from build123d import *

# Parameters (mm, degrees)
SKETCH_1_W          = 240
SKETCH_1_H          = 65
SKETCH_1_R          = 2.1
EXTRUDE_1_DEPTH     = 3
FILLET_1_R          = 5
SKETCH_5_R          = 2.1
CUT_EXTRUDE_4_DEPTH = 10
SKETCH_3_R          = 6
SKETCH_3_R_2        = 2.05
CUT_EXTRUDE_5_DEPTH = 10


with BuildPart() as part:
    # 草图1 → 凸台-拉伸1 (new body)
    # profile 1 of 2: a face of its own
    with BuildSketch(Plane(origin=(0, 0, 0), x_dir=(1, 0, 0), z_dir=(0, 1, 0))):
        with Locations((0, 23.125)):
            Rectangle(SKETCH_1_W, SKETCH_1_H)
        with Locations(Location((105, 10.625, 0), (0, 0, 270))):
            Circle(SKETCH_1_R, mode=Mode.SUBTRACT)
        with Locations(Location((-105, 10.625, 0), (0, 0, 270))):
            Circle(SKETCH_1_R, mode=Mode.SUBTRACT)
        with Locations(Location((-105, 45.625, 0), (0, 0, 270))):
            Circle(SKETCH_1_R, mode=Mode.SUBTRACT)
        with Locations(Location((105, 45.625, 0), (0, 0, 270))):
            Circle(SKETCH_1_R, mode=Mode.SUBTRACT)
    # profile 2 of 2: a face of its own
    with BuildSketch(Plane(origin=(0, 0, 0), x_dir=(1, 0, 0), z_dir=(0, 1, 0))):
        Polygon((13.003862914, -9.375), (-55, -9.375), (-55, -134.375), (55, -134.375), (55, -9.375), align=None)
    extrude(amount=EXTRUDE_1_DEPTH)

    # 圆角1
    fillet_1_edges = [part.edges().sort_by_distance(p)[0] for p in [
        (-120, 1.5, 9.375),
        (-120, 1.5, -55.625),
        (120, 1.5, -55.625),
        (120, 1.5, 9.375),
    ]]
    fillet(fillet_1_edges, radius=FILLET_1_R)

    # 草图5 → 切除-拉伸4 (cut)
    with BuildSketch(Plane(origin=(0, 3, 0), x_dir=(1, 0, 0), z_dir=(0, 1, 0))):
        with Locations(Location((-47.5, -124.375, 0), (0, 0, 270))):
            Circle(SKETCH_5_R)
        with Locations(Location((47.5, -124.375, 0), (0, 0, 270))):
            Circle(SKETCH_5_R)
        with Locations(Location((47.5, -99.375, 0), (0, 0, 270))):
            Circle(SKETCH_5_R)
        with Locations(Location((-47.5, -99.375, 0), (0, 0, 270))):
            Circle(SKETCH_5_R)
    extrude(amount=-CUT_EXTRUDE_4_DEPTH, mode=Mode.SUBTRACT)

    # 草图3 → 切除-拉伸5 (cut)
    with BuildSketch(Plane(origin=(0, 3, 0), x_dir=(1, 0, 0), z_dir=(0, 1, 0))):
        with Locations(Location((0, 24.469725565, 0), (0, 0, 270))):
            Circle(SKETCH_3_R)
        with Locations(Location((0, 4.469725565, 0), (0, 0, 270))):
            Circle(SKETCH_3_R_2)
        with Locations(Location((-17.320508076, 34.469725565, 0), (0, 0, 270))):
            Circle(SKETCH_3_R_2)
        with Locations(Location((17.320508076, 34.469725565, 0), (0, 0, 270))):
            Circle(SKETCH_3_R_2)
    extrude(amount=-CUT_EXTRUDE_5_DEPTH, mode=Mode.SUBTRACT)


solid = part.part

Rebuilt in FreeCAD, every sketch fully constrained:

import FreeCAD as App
import Part
import Sketcher

V = App.Vector
Q = App.Units.Quantity


def edges_at(feature, points):
    """Names of the edges that pass closest to the given points."""
    edges = feature.Shape.Edges
    near = lambda p: min(range(len(edges)), key=lambda i: edges[i].distToShape(Part.Vertex(*p))[0])
    return sorted({f"Edge{near(p) + 1}" for p in points})


def add_polygon(sketch, points):
    """Adds a closed chain of lines whose ends are joined by coincident constraints."""
    first, n = sketch.GeometryCount, len(points)
    for a, b in zip(points, points[1:] + points[:1]):
        sketch.addGeometry(Part.LineSegment(App.Vector(*a, 0), App.Vector(*b, 0)), False)
    for i in range(n):
        sketch.addConstraint(Sketcher.Constraint("Coincident", first + i, 2, first + (i + 1) % n, 1))

doc = App.newDocument("Part")
body = doc.addObject("PartDesign::Body", "Body")

sketch1 = body.newObject("Sketcher::SketchObject", "Sketch")
sketch1.AttachmentSupport = (doc.getObject("XZ_Plane"), [""])
sketch1.MapMode = "FlatFace"
add_polygon(sketch1, [(-120, -55.625), (-120, 9.375), (-55, 9.375), (-55, 134.375), (55, 134.375), (55, 9.375), (120, 9.375), (120, -55.625)])
sketch1.addGeometry(Part.Circle(V(-105, -10.625, 0), V(0, 0, 1), 2.1), False)
sketch1.addGeometry(Part.Circle(V(105, -10.625, 0), V(0, 0, 1), 2.1), False)
sketch1.addGeometry(Part.Circle(V(-105, -45.625, 0), V(0, 0, 1), 2.1), False)
sketch1.addGeometry(Part.Circle(V(105, -45.625, 0), V(0, 0, 1), 2.1), False)
sketch1.addConstraint(Sketcher.Constraint("Vertical", 0))
sketch1.addConstraint(Sketcher.Constraint("Horizontal", 1))
sketch1.addConstraint(Sketcher.Constraint("Vertical", 2))
sketch1.addConstraint(Sketcher.Constraint("Horizontal", 3))
sketch1.addConstraint(Sketcher.Constraint("Vertical", 4))
sketch1.addConstraint(Sketcher.Constraint("Horizontal", 5))
sketch1.addConstraint(Sketcher.Constraint("Vertical", 6))
sketch1.addConstraint(Sketcher.Constraint("Horizontal", 7))
sketch1.addConstraint(Sketcher.Constraint("Equal", 8, 9))
sketch1.addConstraint(Sketcher.Constraint("Equal", 9, 10))
sketch1.addConstraint(Sketcher.Constraint("Equal", 10, 11))
sketch1.addConstraint(Sketcher.Constraint("Symmetric", 8, 3, 9, 3, -2))
sketch1.addConstraint(Sketcher.Constraint("Symmetric", 10, 3, 11, 3, -2))
sketch1.addConstraint(Sketcher.Constraint("Symmetric", 1, 2, 4, 2, -2))
sketch1.addConstraint(Sketcher.Constraint("Vertical", 8, 3, 10, 3))
sketch1.addConstraint(Sketcher.Constraint("Equal", 1, 5))
sketch1.addConstraint(Sketcher.Constraint("Equal", 5, 0))
sketch1.addConstraint(Sketcher.Constraint("Diameter", 8, Q("4.2 mm")))
sketch1.addConstraint(Sketcher.Constraint("DistanceX", 1, 1, 1, 2, Q("65 mm")))
sketch1.addConstraint(Sketcher.Constraint("DistanceX", 3, 1, 3, 2, Q("110 mm")))
sketch1.addConstraint(Sketcher.Constraint("DistanceY", 2, 1, 2, 2, Q("125 mm")))
sketch1.addConstraint(Sketcher.Constraint("DistanceX", 8, 3, -1, 1, Q("105 mm")))
sketch1.addConstraint(Sketcher.Constraint("DistanceY", 10, 3, 8, 3, Q("35 mm")))
sketch1.addConstraint(Sketcher.Constraint("DistanceY", 8, 3, 0, 2, Q("20 mm")))
sketch1.addConstraint(Sketcher.Constraint("DistanceY", 8, 3, -1, 1, Q("10.625 mm")))
pad1 = body.newObject("PartDesign::Pad", "Pad")
pad1.Profile = sketch1
pad1.Length = 3
pad1.Reversed = True
doc.recompute()

fillet = body.newObject("PartDesign::Fillet", "Fillet")
fillet.Base = (pad1, edges_at(pad1, [
    (-120, 1.5, 9.375),
    (-120, 1.5, -55.625),
    (120, 1.5, -55.625),
    (120, 1.5, 9.375),
]))
fillet.Radius = 5

sketch2 = body.newObject("Sketcher::SketchObject", "Sketch001")
sketch2.AttachmentSupport = (doc.getObject("XZ_Plane"), [""])
sketch2.MapMode = "FlatFace"
sketch2.AttachmentOffset = App.Placement(V(0, 0, -3), App.Rotation())
sketch2.addGeometry(Part.Circle(V(-47.5, 124.375, 0), V(0, 0, 1), 2.1), False)
sketch2.addGeometry(Part.Circle(V(47.5, 124.375, 0), V(0, 0, 1), 2.1), False)
sketch2.addGeometry(Part.Circle(V(47.5, 99.375, 0), V(0, 0, 1), 2.1), False)
sketch2.addGeometry(Part.Circle(V(-47.5, 99.375, 0), V(0, 0, 1), 2.1), False)
sketch2.addConstraint(Sketcher.Constraint("Equal", 0, 1))
sketch2.addConstraint(Sketcher.Constraint("Equal", 1, 2))
sketch2.addConstraint(Sketcher.Constraint("Equal", 2, 3))
sketch2.addConstraint(Sketcher.Constraint("Symmetric", 0, 3, 1, 3, -2))
sketch2.addConstraint(Sketcher.Constraint("Symmetric", 2, 3, 3, 3, -2))
sketch2.addConstraint(Sketcher.Constraint("Vertical", 1, 3, 2, 3))
sketch2.addConstraint(Sketcher.Constraint("Diameter", 0, Q("4.2 mm")))
sketch2.addConstraint(Sketcher.Constraint("DistanceX", 0, 3, 1, 3, Q("95 mm")))
sketch2.addConstraint(Sketcher.Constraint("DistanceY", 2, 3, 1, 3, Q("25 mm")))
sketch2.addConstraint(Sketcher.Constraint("DistanceY", -1, 1, 0, 3, Q("124.375 mm")))
pocket1 = body.newObject("PartDesign::Pocket", "Pocket")
pocket1.Profile = sketch2
pocket1.Length = 10
pocket1.Reversed = True

sketch3 = body.newObject("Sketcher::SketchObject", "Sketch002")
sketch3.AttachmentSupport = (doc.getObject("XZ_Plane"), [""])
sketch3.MapMode = "FlatFace"
sketch3.AttachmentOffset = App.Placement(V(0, 0, -3), App.Rotation())
sketch3.addGeometry(Part.Circle(V(0, -24.469726, 0), V(0, 0, 1), 6), False)
sketch3.addGeometry(Part.Circle(V(0, -4.469726, 0), V(0, 0, 1), 2.05), False)
sketch3.addGeometry(Part.Circle(V(-17.320508, -34.469726, 0), V(0, 0, 1), 2.05), False)
sketch3.addGeometry(Part.Circle(V(17.320508, -34.469726, 0), V(0, 0, 1), 2.05), False)
sketch3.addConstraint(Sketcher.Constraint("Equal", 1, 2))
sketch3.addConstraint(Sketcher.Constraint("Equal", 2, 3))
sketch3.addConstraint(Sketcher.Constraint("Symmetric", 2, 3, 3, 3, -2))
sketch3.addConstraint(Sketcher.Constraint("PointOnObject", 0, 3, -2))
sketch3.addConstraint(Sketcher.Constraint("PointOnObject", 1, 3, -2))
sketch3.addConstraint(Sketcher.Constraint("Diameter", 0, Q("12 mm")))
sketch3.addConstraint(Sketcher.Constraint("Diameter", 1, Q("4.1 mm")))
sketch3.addConstraint(Sketcher.Constraint("DistanceY", 0, 3, 1, 3, Q("20 mm")))
sketch3.addConstraint(Sketcher.Constraint("DistanceY", 2, 3, 0, 3, Q("10 mm")))
sketch3.addConstraint(Sketcher.Constraint("DistanceX", 2, 3, -1, 1, Q("17.320508 mm")))
sketch3.addConstraint(Sketcher.Constraint("DistanceY", 0, 3, -1, 1, Q("24.469726 mm")))
pocket2 = body.newObject("PartDesign::Pocket", "Pocket001")
pocket2.Profile = sketch3
pocket2.Length = 10
pocket2.Reversed = True

doc.recompute()
